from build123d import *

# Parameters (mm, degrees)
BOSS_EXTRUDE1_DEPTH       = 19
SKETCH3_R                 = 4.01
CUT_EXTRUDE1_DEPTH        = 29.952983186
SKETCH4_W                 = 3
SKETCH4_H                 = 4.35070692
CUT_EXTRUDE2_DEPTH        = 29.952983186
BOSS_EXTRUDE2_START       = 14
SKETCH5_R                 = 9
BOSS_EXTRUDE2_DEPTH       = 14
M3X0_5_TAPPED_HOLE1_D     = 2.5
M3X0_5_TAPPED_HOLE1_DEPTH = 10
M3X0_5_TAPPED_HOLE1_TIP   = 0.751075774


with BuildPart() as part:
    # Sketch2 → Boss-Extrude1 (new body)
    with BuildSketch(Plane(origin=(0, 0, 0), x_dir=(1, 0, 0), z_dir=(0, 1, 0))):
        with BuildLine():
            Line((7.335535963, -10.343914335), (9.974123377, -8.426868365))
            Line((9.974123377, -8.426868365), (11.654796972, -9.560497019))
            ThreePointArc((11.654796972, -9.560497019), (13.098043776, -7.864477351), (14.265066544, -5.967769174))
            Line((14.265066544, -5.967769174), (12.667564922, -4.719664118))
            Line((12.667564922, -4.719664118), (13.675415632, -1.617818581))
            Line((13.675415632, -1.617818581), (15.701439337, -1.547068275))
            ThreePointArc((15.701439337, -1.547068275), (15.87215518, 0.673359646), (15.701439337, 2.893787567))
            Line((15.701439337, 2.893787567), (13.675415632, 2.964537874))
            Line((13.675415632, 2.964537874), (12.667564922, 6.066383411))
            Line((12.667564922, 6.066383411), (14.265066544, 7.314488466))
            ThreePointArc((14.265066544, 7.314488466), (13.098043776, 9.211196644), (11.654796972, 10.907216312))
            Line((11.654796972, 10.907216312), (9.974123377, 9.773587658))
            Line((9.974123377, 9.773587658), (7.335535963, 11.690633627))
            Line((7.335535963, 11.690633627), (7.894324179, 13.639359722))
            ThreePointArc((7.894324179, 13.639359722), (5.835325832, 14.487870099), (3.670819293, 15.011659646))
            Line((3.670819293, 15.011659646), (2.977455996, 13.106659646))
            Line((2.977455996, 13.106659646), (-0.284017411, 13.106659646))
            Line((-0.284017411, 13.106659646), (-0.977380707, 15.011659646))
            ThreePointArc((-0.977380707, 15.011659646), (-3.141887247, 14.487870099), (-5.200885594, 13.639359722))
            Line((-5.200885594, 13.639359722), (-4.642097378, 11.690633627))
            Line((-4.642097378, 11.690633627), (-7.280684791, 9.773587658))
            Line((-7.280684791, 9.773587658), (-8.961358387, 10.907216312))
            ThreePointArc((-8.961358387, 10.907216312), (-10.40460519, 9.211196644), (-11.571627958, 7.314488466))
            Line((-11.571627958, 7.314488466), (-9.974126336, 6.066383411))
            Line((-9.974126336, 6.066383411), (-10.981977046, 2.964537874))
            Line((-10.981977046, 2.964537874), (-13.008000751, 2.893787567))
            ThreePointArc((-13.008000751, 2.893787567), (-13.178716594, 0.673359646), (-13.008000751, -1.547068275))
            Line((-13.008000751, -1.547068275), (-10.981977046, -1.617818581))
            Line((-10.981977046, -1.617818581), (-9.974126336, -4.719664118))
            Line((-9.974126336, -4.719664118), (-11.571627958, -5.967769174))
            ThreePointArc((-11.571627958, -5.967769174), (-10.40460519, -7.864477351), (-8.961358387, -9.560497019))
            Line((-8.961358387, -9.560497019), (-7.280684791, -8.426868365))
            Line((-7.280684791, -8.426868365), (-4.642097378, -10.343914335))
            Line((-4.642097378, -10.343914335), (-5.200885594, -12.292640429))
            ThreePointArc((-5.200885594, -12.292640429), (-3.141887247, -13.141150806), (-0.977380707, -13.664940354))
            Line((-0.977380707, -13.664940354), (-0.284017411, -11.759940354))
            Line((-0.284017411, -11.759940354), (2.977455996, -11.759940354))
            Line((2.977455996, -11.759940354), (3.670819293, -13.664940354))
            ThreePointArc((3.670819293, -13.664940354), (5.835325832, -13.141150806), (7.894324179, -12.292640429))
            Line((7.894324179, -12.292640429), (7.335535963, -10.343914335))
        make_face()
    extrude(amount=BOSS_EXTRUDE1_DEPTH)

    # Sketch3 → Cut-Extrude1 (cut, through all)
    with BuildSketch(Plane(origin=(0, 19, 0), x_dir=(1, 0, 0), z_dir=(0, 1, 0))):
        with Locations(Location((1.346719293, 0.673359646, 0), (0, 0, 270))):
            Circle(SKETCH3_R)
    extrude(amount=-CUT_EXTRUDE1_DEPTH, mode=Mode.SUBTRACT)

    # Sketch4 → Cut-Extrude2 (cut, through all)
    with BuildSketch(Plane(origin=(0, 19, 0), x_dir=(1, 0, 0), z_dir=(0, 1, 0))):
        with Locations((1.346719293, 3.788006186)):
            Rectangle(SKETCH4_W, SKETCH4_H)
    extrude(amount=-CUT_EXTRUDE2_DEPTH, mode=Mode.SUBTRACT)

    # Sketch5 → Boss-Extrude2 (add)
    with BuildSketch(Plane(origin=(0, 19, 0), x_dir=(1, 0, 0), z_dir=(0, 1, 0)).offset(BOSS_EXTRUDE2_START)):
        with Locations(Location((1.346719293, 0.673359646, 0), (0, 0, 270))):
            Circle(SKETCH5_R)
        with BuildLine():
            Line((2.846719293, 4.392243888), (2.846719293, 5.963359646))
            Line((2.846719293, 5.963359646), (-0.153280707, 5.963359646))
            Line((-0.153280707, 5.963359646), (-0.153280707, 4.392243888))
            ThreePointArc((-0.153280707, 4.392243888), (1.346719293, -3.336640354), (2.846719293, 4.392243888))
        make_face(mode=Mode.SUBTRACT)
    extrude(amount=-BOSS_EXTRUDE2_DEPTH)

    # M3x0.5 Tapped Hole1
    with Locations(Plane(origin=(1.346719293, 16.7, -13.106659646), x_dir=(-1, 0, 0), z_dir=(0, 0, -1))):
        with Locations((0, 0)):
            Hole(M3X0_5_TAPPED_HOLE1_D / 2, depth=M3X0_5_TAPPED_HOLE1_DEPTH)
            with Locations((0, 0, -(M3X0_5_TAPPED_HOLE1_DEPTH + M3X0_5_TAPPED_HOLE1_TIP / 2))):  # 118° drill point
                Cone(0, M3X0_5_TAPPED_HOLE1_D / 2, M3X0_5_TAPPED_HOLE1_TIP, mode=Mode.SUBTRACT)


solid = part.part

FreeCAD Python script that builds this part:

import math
import FreeCAD as App
import Part
import Sketcher
Q = App.Units.Quantity

doc = App.newDocument("Part")
body = doc.addObject("PartDesign::Body", "Body")

sketch1 = body.newObject("Sketcher::SketchObject", "Sketch")
sketch1.AttachmentSupport = (doc.getObject("XZ_Plane"), [""])
sketch1.MapMode = "FlatFace"
sketch1.addGeometry([
    Part.LineSegment(App.Vector(7.335536, 10.343914, 0), App.Vector(9.974123, 8.426868, 0)),
    Part.LineSegment(App.Vector(9.974123, 8.426868, 0), App.Vector(11.654797, 9.560497, 0)),
    Part.ArcOfCircle(Part.Circle(App.Vector(1.346719, -0.67336, 0), App.Vector(0, 0, 1), 14.525436), math.radians(27.207017), math.radians(44.792983)),
    Part.LineSegment(App.Vector(14.265067, 5.967769, 0), App.Vector(12.667565, 4.719664, 0)),
    Part.LineSegment(App.Vector(12.667565, 4.719664, 0), App.Vector(13.675416, 1.617819, 0)),
    Part.LineSegment(App.Vector(13.675416, 1.617819, 0), App.Vector(15.701439, 1.547068, 0)),
    Part.ArcOfCircle(Part.Circle(App.Vector(1.346719, -0.67336, 0), App.Vector(0, 0, 1), 14.525436), math.radians(-8.792983), math.radians(8.792983)),
    Part.LineSegment(App.Vector(15.701439, -2.893788, 0), App.Vector(13.675416, -2.964538, 0)),
    Part.LineSegment(App.Vector(13.675416, -2.964538, 0), App.Vector(12.667565, -6.066383, 0)),
    Part.LineSegment(App.Vector(12.667565, -6.066383, 0), App.Vector(14.265067, -7.314488, 0)),
    Part.ArcOfCircle(Part.Circle(App.Vector(1.346719, -0.67336, 0), App.Vector(0, 0, 1), 14.525436), math.radians(-44.792983), math.radians(-27.207017)),
    Part.LineSegment(App.Vector(11.654797, -10.907216, 0), App.Vector(9.974123, -9.773588, 0)),
    Part.LineSegment(App.Vector(9.974123, -9.773588, 0), App.Vector(7.335536, -11.690634, 0)),
    Part.LineSegment(App.Vector(7.335536, -11.690634, 0), App.Vector(7.894324, -13.63936, 0)),
    Part.ArcOfCircle(Part.Circle(App.Vector(1.346719, -0.67336, 0), App.Vector(0, 0, 1), 14.525436), math.radians(-80.792983), math.radians(-63.207017)),
    Part.LineSegment(App.Vector(3.670819, -15.01166, 0), App.Vector(2.977456, -13.10666, 0)),
    Part.LineSegment(App.Vector(2.977456, -13.10666, 0), App.Vector(-0.284017, -13.10666, 0)),
    Part.LineSegment(App.Vector(-0.284017, -13.10666, 0), App.Vector(-0.977381, -15.01166, 0)),
    Part.ArcOfCircle(Part.Circle(App.Vector(1.346719, -0.67336, 0), App.Vector(0, 0, 1), 14.525436), math.radians(-116.792983), math.radians(-99.207017)),
    Part.LineSegment(App.Vector(-5.200886, -13.63936, 0), App.Vector(-4.642097, -11.690634, 0)),
    Part.LineSegment(App.Vector(-4.642097, -11.690634, 0), App.Vector(-7.280685, -9.773588, 0)),
    Part.LineSegment(App.Vector(-7.280685, -9.773588, 0), App.Vector(-8.961358, -10.907216, 0)),
    Part.ArcOfCircle(Part.Circle(App.Vector(1.346719, -0.67336, 0), App.Vector(0, 0, 1), 14.525436), math.radians(-152.792983), math.radians(-135.207017)),
    Part.LineSegment(App.Vector(-11.571628, -7.314488, 0), App.Vector(-9.974126, -6.066383, 0)),
    Part.LineSegment(App.Vector(-9.974126, -6.066383, 0), App.Vector(-10.981977, -2.964538, 0)),
    Part.LineSegment(App.Vector(-10.981977, -2.964538, 0), App.Vector(-13.008001, -2.893788, 0)),
    Part.ArcOfCircle(Part.Circle(App.Vector(1.346719, -0.67336, 0), App.Vector(0, 0, 1), 14.525436), math.radians(171.207017), math.radians(188.792983)),
    Part.LineSegment(App.Vector(-13.008001, 1.547068, 0), App.Vector(-10.981977, 1.617819, 0)),
    Part.LineSegment(App.Vector(-10.981977, 1.617819, 0), App.Vector(-9.974126, 4.719664, 0)),
    Part.LineSegment(App.Vector(-9.974126, 4.719664, 0), App.Vector(-11.571628, 5.967769, 0)),
    Part.ArcOfCircle(Part.Circle(App.Vector(1.346719, -0.67336, 0), App.Vector(0, 0, 1), 14.525436), math.radians(135.207017), math.radians(152.792983)),
    Part.LineSegment(App.Vector(-8.961358, 9.560497, 0), App.Vector(-7.280685, 8.426868, 0)),
    Part.LineSegment(App.Vector(-7.280685, 8.426868, 0), App.Vector(-4.642097, 10.343914, 0)),
    Part.LineSegment(App.Vector(-4.642097, 10.343914, 0), App.Vector(-5.200886, 12.29264, 0)),
    Part.ArcOfCircle(Part.Circle(App.Vector(1.346719, -0.67336, 0), App.Vector(0, 0, 1), 14.525436), math.radians(99.207017), math.radians(116.792983)),
    Part.LineSegment(App.Vector(-0.977381, 13.66494, 0), App.Vector(-0.284017, 11.75994, 0)),
    Part.LineSegment(App.Vector(-0.284017, 11.75994, 0), App.Vector(2.977456, 11.75994, 0)),
    Part.LineSegment(App.Vector(2.977456, 11.75994, 0), App.Vector(3.670819, 13.66494, 0)),
    Part.ArcOfCircle(Part.Circle(App.Vector(1.346719, -0.67336, 0), App.Vector(0, 0, 1), 14.525436), math.radians(63.207017), math.radians(80.792983)),
    Part.LineSegment(App.Vector(7.894324, 12.29264, 0), App.Vector(7.335536, 10.343914, 0)),
], False)
sketch1.addConstraint([
    Sketcher.Constraint("Coincident", 0, 2, 1, 1),
    Sketcher.Constraint("Coincident", 1, 2, 2, 2),
    Sketcher.Constraint("Coincident", 2, 1, 3, 1),
    Sketcher.Constraint("Coincident", 3, 2, 4, 1),
    Sketcher.Constraint("Coincident", 4, 2, 5, 1),
    Sketcher.Constraint("Coincident", 5, 2, 6, 2),
    Sketcher.Constraint("Coincident", 6, 1, 7, 1),
    Sketcher.Constraint("Coincident", 7, 2, 8, 1),
    Sketcher.Constraint("Coincident", 8, 2, 9, 1),
    Sketcher.Constraint("Coincident", 9, 2, 10, 2),
    Sketcher.Constraint("Coincident", 10, 1, 11, 1),
    Sketcher.Constraint("Coincident", 11, 2, 12, 1),
    Sketcher.Constraint("Coincident", 12, 2, 13, 1),
    Sketcher.Constraint("Coincident", 13, 2, 14, 2),
    Sketcher.Constraint("Coincident", 14, 1, 15, 1),
    Sketcher.Constraint("Coincident", 15, 2, 16, 1),
    Sketcher.Constraint("Coincident", 16, 2, 17, 1),
    Sketcher.Constraint("Coincident", 17, 2, 18, 2),
    Sketcher.Constraint("Coincident", 18, 1, 19, 1),
    Sketcher.Constraint("Coincident", 19, 2, 20, 1),
    Sketcher.Constraint("Coincident", 20, 2, 21, 1),
    Sketcher.Constraint("Coincident", 21, 2, 22, 2),
    Sketcher.Constraint("Coincident", 22, 1, 23, 1),
    Sketcher.Constraint("Coincident", 23, 2, 24, 1),
    Sketcher.Constraint("Coincident", 24, 2, 25, 1),
    Sketcher.Constraint("Coincident", 25, 2, 26, 2),
    Sketcher.Constraint("Coincident", 26, 1, 27, 1),
    Sketcher.Constraint("Coincident", 27, 2, 28, 1),
    Sketcher.Constraint("Coincident", 28, 2, 29, 1),
    Sketcher.Constraint("Coincident", 29, 2, 30, 2),
    Sketcher.Constraint("Coincident", 30, 1, 31, 1),
    Sketcher.Constraint("Coincident", 31, 2, 32, 1),
    Sketcher.Constraint("Coincident", 32, 2, 33, 1),
    Sketcher.Constraint("Coincident", 33, 2, 34, 2),
    Sketcher.Constraint("Coincident", 34, 1, 35, 1),
    Sketcher.Constraint("Coincident", 35, 2, 36, 1),
    Sketcher.Constraint("Coincident", 36, 2, 37, 1),
    Sketcher.Constraint("Coincident", 37, 2, 38, 2),
    Sketcher.Constraint("Coincident", 38, 1, 39, 1),
    Sketcher.Constraint("Coincident", 39, 2, 0, 1),
    Sketcher.Constraint("Horizontal", 16),
    Sketcher.Constraint("Horizontal", 36),
    Sketcher.Constraint("Coincident", 6, 3, 2, 3),
    Sketcher.Constraint("Coincident", 10, 3, 2, 3),
    Sketcher.Constraint("Coincident", 14, 3, 2, 3),
    Sketcher.Constraint("Coincident", 18, 3, 2, 3),
    Sketcher.Constraint("Coincident", 22, 3, 2, 3),
    Sketcher.Constraint("Coincident", 26, 3, 2, 3),
    Sketcher.Constraint("Coincident", 30, 3, 2, 3),
    Sketcher.Constraint("Coincident", 34, 3, 2, 3),
    Sketcher.Constraint("Coincident", 38, 3, 2, 3),
    Sketcher.Constraint("Equal", 2, 6),
    Sketcher.Constraint("Equal", 6, 10),
    Sketcher.Constraint("Equal", 10, 14),
    Sketcher.Constraint("Equal", 14, 18),
    Sketcher.Constraint("Equal", 18, 22),
    Sketcher.Constraint("Equal", 22, 26),
    Sketcher.Constraint("Equal", 26, 30),
    Sketcher.Constraint("Equal", 30, 34),
    Sketcher.Constraint("Equal", 34, 38),
    Sketcher.Constraint("Parallel", 0, 20),
    Sketcher.Constraint("Parallel", 1, 21),
    Sketcher.Constraint("Parallel", 3, 23),
    Sketcher.Constraint("Parallel", 4, 24),
    Sketcher.Constraint("Parallel", 5, 25),
    Sketcher.Constraint("Parallel", 7, 27),
    Sketcher.Constraint("Parallel", 8, 28),
    Sketcher.Constraint("Parallel", 9, 29),
    Sketcher.Constraint("Parallel", 11, 31),
    Sketcher.Constraint("Parallel", 12, 32),
    Sketcher.Constraint("Parallel", 13, 33),
    Sketcher.Constraint("Parallel", 15, 35),
    Sketcher.Constraint("Parallel", 17, 37),
    Sketcher.Constraint("Parallel", 19, 39),
    Sketcher.Constraint("Horizontal", 14, 1, 17, 2),
    Sketcher.Constraint("Horizontal", 13, 2, 18, 1),
    Sketcher.Constraint("Horizontal", 12, 2, 19, 2),
    Sketcher.Constraint("Horizontal", 11, 2, 20, 2),
    Sketcher.Constraint("Horizontal", 10, 1, 21, 2),
    Sketcher.Constraint("Horizontal", 9, 2, 22, 1),
    Sketcher.Constraint("Horizontal", 8, 2, 23, 2),
    Sketcher.Constraint("Horizontal", 7, 2, 24, 2),
    Sketcher.Constraint("Horizontal", 6, 1, 25, 2),
    Sketcher.Constraint("Horizontal", 5, 2, 26, 1),
    Sketcher.Constraint("Horizontal", 4, 2, 27, 2),
    Sketcher.Constraint("Horizontal", 3, 2, 28, 2),
    Sketcher.Constraint("Horizontal", 1, 2, 30, 1),
    Sketcher.Constraint("Horizontal", 0, 2, 31, 2),
    Sketcher.Constraint("Horizontal", 34, 1, 37, 2),
    Sketcher.Constraint("Horizontal", 33, 2, 38, 1),
    Sketcher.Constraint("Vertical", 5, 2, 6, 1),
    Sketcher.Constraint("Vertical", 4, 2, 7, 2),
    Sketcher.Constraint("Vertical", 3, 2, 8, 2),
    Sketcher.Constraint("Vertical", 2, 1, 9, 2),
    Sketcher.Constraint("Vertical", 1, 2, 10, 1),
    Sketcher.Constraint("Vertical", 0, 2, 11, 2),
    Sketcher.Constraint("Vertical", 24, 2, 27, 2),
    Sketcher.Constraint("Vertical", 20, 2, 31, 2),
    Sketcher.Constraint("Vertical", 19, 2, 32, 2),
    Sketcher.Constraint("Vertical", 18, 1, 33, 2),
    Sketcher.Constraint("Vertical", 17, 2, 34, 1),
    Sketcher.Constraint("Vertical", 16, 2, 35, 2),
    Sketcher.Constraint("Vertical", 15, 2, 36, 2),
    Sketcher.Constraint("Equal", 1, 3),
    Sketcher.Constraint("Equal", 0, 4),
    Sketcher.Constraint("Equal", 3, 5),
    Sketcher.Constraint("Equal", 11, 13),
    Sketcher.Constraint("Equal", 13, 15),
    Sketcher.Constraint("Angle", 0, Q("-36 deg")),
    Sketcher.Constraint("Angle", 1, Q("34 deg")),
    Sketcher.Constraint("Angle", 3, Q("-142 deg")),
    Sketcher.Constraint("Angle", 4, Q("-72 deg")),
    Sketcher.Constraint("Angle", 5, Q("-2 deg")),
    Sketcher.Constraint("Angle", 13, Q("-74 deg")),
    Sketcher.Constraint("Angle", 15, Q("110 deg")),
    Sketcher.Constraint("DistanceX", 25, 2, -1, 1, 13.008001),
    Sketcher.Constraint("Radius", 2, 14.525436),
    Sketcher.Constraint("DistanceY", 14, 1, 15, 2, 1.905),
    Sketcher.Constraint("DistanceY", 2, 1, 0, 2, 2.459099),
    Sketcher.Constraint("DistanceY", 14, 1, 13, 2, 1.3723),
    Sketcher.Constraint("DistanceY", 2, 3, -1, 1, 0.67336),
])
pad1 = body.newObject("PartDesign::Pad", "Pad")
pad1.Profile = sketch1
pad1.Length = 19
pad1.Reversed = True

sketch2 = body.newObject("Sketcher::SketchObject", "Sketch001")
sketch2.AttachmentSupport = (doc.getObject("XZ_Plane"), [""])
sketch2.MapMode = "FlatFace"
sketch2.AttachmentOffset = App.Placement(App.Vector(0, 0, -19), App.Rotation())
sketch2.addGeometry(Part.Circle(App.Vector(1.346719, -0.67336, 0), App.Vector(0, 0, 1), 4.01), False)
sketch2.addConstraint([
    Sketcher.Constraint("Diameter", 0, 8.02),
    Sketcher.Constraint("DistanceX", -1, 1, 0, 3, 1.346719),
    Sketcher.Constraint("DistanceY", 0, 3, -1, 1, 0.67336),
])
pocket1 = body.newObject("PartDesign::Pocket", "Pocket")
pocket1.Profile = sketch2
pocket1.Type = "ThroughAll"
pocket1.Reversed = True

sketch3 = body.newObject("Sketcher::SketchObject", "Sketch002")
sketch3.AttachmentSupport = (doc.getObject("XZ_Plane"), [""])
sketch3.MapMode = "FlatFace"
sketch3.AttachmentOffset = App.Placement(App.Vector(0, 0, -19), App.Rotation())
sketch3.addGeometry([
    Part.LineSegment(App.Vector(-0.153281, -5.96336, 0), App.Vector(-0.153281, -1.612653, 0)),
    Part.LineSegment(App.Vector(-0.153281, -1.612653, 0), App.Vector(2.846719, -1.612653, 0)),
    Part.LineSegment(App.Vector(2.846719, -1.612653, 0), App.Vector(2.846719, -5.96336, 0)),
    Part.LineSegment(App.Vector(2.846719, -5.96336, 0), App.Vector(-0.153281, -5.96336, 0)),
], False)
sketch3.addConstraint([
    Sketcher.Constraint("Coincident", 0, 2, 1, 1),
    Sketcher.Constraint("Coincident", 1, 2, 2, 1),
    Sketcher.Constraint("Coincident", 2, 2, 3, 1),
    Sketcher.Constraint("Coincident", 3, 2, 0, 1),
    Sketcher.Constraint("Vertical", 0),
    Sketcher.Constraint("Horizontal", 1),
    Sketcher.Constraint("Vertical", 2),
    Sketcher.Constraint("Horizontal", 3),
    Sketcher.Constraint("DistanceX", 1, 1, 1, 2, 3.0),
    Sketcher.Constraint("DistanceY", 0, 1, 0, 2, 4.350707),
    Sketcher.Constraint("DistanceX", 0, 2, -1, 1, 0.153281),
    Sketcher.Constraint("DistanceY", 2, 2, -1, 1, 5.96336),
])
pocket2 = body.newObject("PartDesign::Pocket", "Pocket001")
pocket2.Profile = sketch3
pocket2.Type = "ThroughAll"
pocket2.Reversed = True

sketch4 = body.newObject("Sketcher::SketchObject", "Sketch003")
sketch4.AttachmentSupport = (doc.getObject("XZ_Plane"), [""])
sketch4.MapMode = "FlatFace"
sketch4.AttachmentOffset = App.Placement(App.Vector(0, 0, -33), App.Rotation())
sketch4.addGeometry([
    Part.Circle(App.Vector(1.346719, -0.67336, 0), App.Vector(0, 0, 1), 9),
    Part.LineSegment(App.Vector(2.846719, -5.96336, 0), App.Vector(2.846719, -4.392244, 0)),
    Part.ArcOfCircle(Part.Circle(App.Vector(1.346719, -0.67336, 0), App.Vector(0, 0, 1), 4.01), math.radians(-68.033474), math.radians(248.033474)),
    Part.LineSegment(App.Vector(-0.153281, -4.392244, 0), App.Vector(-0.153281, -5.96336, 0)),
    Part.LineSegment(App.Vector(-0.153281, -5.96336, 0), App.Vector(2.846719, -5.96336, 0)),
], False)
sketch4.addConstraint([
    Sketcher.Constraint("Coincident", 1, 2, 2, 1),
    Sketcher.Constraint("Coincident", 2, 2, 3, 1),
    Sketcher.Constraint("Coincident", 3, 2, 4, 1),
    Sketcher.Constraint("Coincident", 4, 2, 1, 1),
    Sketcher.Constraint("Vertical", 1),
    Sketcher.Constraint("Vertical", 3),
    Sketcher.Constraint("Horizontal", 4),
    Sketcher.Constraint("Coincident", 2, 3, 0, 3),
    Sketcher.Constraint("Horizontal", 1, 2, 2, 2),
    Sketcher.Constraint("Diameter", 0, 18.0),
    Sketcher.Constraint("DistanceX", 4, 1, 4, 2, 3.0),
    Sketcher.Constraint("Radius", 2, 4.01),
    Sketcher.Constraint("DistanceY", 3, 2, 0, 3, 5.29),
    Sketcher.Constraint("DistanceX", -1, 1, 0, 3, 1.346719),
    Sketcher.Constraint("DistanceY", 0, 3, -1, 1, 0.67336),
])
pad2 = body.newObject("PartDesign::Pad", "Pad001")
pad2.Profile = sketch4
pad2.Length = 14

sketch5 = body.newObject("Sketcher::SketchObject", "Sketch004")
sketch5.AttachmentSupport = (doc.getObject("XY_Plane"), [""])
sketch5.MapMode = "FlatFace"
sketch5.AttachmentOffset = App.Placement(App.Vector(0, 0, -13.10666), App.Rotation())
sketch5.addGeometry(Part.Circle(App.Vector(1.346719, 16.7, 0), App.Vector(0, 0, 1), 1.25), False)
sketch5.addConstraint([
    Sketcher.Constraint("Diameter", 0, 2.5),
    Sketcher.Constraint("DistanceY", -1, 1, 0, 3, 16.7),
    Sketcher.Constraint("DistanceX", -1, 1, 0, 3, 1.346719),
])
doc.recompute()
hole = body.newObject("PartDesign::Hole", "Hole")
hole.Profile = sketch5
hole.ThreadType = "None"
hole.Diameter = 2.5
hole.DepthType = "Dimension"
hole.Depth = 10
hole.DrillPoint = "Angled"
hole.DrillPointAngle = 118
hole.Reversed = True

doc.recompute()
